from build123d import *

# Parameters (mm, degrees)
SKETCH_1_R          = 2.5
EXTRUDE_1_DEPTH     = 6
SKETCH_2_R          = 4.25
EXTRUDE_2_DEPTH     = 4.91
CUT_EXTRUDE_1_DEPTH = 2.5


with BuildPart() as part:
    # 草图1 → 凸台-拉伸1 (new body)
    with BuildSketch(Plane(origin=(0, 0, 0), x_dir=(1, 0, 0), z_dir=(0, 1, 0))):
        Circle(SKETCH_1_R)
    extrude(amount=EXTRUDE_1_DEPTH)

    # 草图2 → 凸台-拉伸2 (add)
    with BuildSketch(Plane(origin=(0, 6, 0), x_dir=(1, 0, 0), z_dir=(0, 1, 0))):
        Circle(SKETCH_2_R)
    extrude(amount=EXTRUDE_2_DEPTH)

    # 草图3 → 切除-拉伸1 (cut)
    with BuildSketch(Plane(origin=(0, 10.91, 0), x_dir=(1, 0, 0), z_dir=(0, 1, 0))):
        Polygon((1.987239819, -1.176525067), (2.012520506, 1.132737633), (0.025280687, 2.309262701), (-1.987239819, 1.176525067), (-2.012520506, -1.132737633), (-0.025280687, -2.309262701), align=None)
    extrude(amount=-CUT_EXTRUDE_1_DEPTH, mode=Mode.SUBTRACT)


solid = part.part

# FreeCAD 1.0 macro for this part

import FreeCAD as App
import Part
import Sketcher
Q = App.Units.Quantity


def add_polygon(sketch, points):
    """Adds a closed chain of lines whose ends are joined by coincident constraints."""
    first, n = sketch.GeometryCount, len(points)
    for a, b in zip(points, points[1:] + points[:1]):
        sketch.addGeometry(Part.LineSegment(App.Vector(*a, 0), App.Vector(*b, 0)), False)
    for i in range(n):
        sketch.addConstraint(Sketcher.Constraint("Coincident", first + i, 2, first + (i + 1) % n, 1))

doc = App.newDocument("Part")
body = doc.addObject("PartDesign::Body", "Body")

# Sketch on XZ plane
sketch1 = body.newObject("Sketcher::SketchObject", "Sketch")
sketch1.AttachmentSupport = (doc.getObject("XZ_Plane"), [""])
sketch1.MapMode = "FlatFace"
sketch1.addGeometry(Part.Circle(App.Vector(0, 0, 0), App.Vector(0, 0, 1), 2.5), False)
sketch1.addConstraint([
    Sketcher.Constraint("Coincident", 0, 3, -1, 1),
    Sketcher.Constraint("Diameter", 0, Q("5 mm")),
])
pad1 = body.newObject("PartDesign::Pad", "Pad")
pad1.Profile = sketch1
pad1.Length = 6
pad1.Reversed = True

# Sketch on XZ plane
sketch2 = body.newObject("Sketcher::SketchObject", "Sketch001")
sketch2.AttachmentSupport = (doc.getObject("XZ_Plane"), [""])
sketch2.MapMode = "FlatFace"
sketch2.AttachmentOffset = App.Placement(App.Vector(0, 0, -6), App.Rotation())
sketch2.addGeometry(Part.Circle(App.Vector(0, 0, 0), App.Vector(0, 0, 1), 4.2), False)
sketch2.addConstraint([
    Sketcher.Constraint("Coincident", 0, 3, -1, 1),
    Sketcher.Constraint("Diameter", 0, Q("8.5 mm")),
])
pad2 = body.newObject("PartDesign::Pad", "Pad001")
pad2.Profile = sketch2
pad2.Length = 4.91
pad2.Reversed = True

# Sketch on XZ plane
sketch3 = body.newObject("Sketcher::SketchObject", "Sketch002")
sketch3.AttachmentSupport = (doc.getObject("XZ_Plane"), [""])
sketch3.MapMode = "FlatFace"
sketch3.AttachmentOffset = App.Placement(App.Vector(0, 0, -10.91), App.Rotation())
add_polygon(sketch3, [(2, 1.2), (2, -1.1), (0, -2.3), (-2, -1.2), (-2, 1.1), (0, 2.3)])  # lines 0-5
sketch3.addConstraint([
    Sketcher.Constraint("Symmetric", 0, 2, 3, 2, -1, 1),
    Sketcher.Constraint("Symmetric", 1, 2, 4, 2, -1, 1),
    Sketcher.Constraint("Symmetric", 2, 2, 5, 2, -1, 1),
    Sketcher.Constraint("Equal", 0, 1),
    Sketcher.Constraint("Equal", 1, 2),
    Sketcher.Constraint("DistanceY", 1, 2, 3, 2, Q("3.442 mm")),
    Sketcher.Constraint("Distance", 0, Q("2.309401 mm")),
    Sketcher.Constraint("DistanceX", 3, 2, 1, 2, Q("2.037801 mm")),
    Sketcher.Constraint("DistanceX", -1, 1, 0, 2, Q("2.012521 mm")),
])
pocket1 = body.newObject("PartDesign::Pocket", "Pocket")
pocket1.Profile = sketch3
pocket1.Length = 2.5
pocket1.Reversed = True

doc.recompute()
